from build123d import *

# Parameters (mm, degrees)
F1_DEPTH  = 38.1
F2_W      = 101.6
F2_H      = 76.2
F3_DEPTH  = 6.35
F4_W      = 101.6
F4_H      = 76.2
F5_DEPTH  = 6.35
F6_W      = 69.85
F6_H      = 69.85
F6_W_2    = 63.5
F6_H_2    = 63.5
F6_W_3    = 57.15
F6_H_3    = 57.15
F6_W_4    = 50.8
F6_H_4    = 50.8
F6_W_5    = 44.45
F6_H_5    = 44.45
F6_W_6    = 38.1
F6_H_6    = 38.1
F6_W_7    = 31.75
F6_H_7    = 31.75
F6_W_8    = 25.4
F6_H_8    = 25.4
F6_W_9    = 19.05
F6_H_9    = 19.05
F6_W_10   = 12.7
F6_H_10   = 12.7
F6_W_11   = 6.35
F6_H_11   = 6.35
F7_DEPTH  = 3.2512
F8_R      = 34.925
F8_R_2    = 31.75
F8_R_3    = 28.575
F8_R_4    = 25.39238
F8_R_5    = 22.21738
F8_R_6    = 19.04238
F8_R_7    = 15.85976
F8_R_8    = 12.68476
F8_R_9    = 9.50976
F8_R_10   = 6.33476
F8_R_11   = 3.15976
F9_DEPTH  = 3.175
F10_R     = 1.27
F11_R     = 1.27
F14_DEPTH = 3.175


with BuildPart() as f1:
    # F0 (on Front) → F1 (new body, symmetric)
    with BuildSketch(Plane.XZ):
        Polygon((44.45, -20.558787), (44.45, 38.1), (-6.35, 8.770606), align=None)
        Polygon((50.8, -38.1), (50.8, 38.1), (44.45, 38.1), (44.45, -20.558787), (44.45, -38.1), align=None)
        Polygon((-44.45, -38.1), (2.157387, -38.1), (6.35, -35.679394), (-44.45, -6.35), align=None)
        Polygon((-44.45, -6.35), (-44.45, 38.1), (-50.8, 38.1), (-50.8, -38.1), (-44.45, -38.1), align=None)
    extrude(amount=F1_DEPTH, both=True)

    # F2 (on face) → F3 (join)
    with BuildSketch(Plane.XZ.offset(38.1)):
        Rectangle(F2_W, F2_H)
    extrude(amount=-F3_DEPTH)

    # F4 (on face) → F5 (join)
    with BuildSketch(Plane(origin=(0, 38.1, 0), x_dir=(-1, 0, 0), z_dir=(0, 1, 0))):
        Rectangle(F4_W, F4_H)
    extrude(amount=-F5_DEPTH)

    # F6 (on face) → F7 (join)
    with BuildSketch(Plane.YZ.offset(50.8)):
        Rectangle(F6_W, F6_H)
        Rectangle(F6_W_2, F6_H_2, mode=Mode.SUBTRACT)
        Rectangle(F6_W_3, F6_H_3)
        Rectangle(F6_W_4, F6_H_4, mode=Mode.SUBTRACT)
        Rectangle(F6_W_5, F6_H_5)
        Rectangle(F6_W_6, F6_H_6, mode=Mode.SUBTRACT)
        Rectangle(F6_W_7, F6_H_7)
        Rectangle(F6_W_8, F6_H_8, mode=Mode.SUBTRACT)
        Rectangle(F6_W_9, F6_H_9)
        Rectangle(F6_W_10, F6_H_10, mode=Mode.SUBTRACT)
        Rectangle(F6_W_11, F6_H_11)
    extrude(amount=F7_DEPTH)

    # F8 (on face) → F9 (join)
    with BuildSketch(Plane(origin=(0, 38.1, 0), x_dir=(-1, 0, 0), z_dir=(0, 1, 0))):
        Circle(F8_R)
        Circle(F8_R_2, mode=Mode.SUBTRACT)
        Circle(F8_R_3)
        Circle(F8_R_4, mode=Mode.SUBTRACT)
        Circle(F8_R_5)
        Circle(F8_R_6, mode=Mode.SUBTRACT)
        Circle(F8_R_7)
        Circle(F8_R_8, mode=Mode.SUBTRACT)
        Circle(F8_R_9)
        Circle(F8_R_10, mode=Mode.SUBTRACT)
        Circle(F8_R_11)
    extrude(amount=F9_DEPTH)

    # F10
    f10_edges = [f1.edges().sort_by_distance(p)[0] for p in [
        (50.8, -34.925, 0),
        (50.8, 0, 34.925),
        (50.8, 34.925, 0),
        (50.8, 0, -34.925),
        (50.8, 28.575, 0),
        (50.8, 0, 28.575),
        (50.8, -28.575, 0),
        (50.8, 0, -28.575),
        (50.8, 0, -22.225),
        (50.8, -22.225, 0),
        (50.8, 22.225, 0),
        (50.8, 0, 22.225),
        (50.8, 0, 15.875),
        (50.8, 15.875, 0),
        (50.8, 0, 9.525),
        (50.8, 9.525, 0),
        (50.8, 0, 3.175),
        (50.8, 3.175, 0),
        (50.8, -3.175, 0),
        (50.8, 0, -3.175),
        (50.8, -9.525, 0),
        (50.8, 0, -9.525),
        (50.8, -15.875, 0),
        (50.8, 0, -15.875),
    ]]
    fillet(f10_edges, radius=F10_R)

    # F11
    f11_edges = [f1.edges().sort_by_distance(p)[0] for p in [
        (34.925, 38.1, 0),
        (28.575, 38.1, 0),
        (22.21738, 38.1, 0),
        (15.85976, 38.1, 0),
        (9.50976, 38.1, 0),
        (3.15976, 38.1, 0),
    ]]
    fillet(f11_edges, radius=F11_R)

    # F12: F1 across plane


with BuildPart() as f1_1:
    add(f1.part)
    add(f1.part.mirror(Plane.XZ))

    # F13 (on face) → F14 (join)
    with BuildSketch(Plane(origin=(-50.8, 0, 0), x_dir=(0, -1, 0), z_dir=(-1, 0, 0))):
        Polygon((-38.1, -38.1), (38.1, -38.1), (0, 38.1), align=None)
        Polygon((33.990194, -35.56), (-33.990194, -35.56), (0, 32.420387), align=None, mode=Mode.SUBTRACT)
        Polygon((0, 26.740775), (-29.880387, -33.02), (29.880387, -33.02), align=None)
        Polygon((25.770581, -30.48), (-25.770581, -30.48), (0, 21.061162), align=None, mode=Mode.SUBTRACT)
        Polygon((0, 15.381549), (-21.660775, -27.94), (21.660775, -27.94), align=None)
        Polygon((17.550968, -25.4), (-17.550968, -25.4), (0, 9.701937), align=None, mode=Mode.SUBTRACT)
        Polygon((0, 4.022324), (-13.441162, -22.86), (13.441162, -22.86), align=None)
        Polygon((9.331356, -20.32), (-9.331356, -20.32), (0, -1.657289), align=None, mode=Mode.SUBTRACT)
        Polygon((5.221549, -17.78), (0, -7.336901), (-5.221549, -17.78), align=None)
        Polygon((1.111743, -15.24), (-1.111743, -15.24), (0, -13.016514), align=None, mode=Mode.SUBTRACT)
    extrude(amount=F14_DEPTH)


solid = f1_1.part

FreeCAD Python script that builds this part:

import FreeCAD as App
import Part
import Sketcher
from FreeCAD import Vector
Q = App.Units.Quantity


def edges_at(feature, points):
    """Names of the edges that pass closest to the given points."""
    edges = feature.Shape.Edges
    near = lambda p: min(range(len(edges)), key=lambda i: edges[i].distToShape(Part.Vertex(*p))[0])
    return sorted({f"Edge{near(p) + 1}" for p in points})

doc = App.newDocument("Part")
body = doc.addObject("PartDesign::Body", "Body")
body.AllowCompound = True

# Sketch on XZ plane
sketch1 = doc.addObject("Sketcher::SketchObject", "Sketch")
body.addObject(sketch1)
sketch1.AttachmentSupport = (doc.XZ_Plane, [""])
sketch1.MapMode = "FlatFace"
sketch1.addGeometry([
    Part.LineSegment(Vector(44.5, 38.1, 0), Vector(-6.3, 8.8, 0)),  # 0
    Part.LineSegment(Vector(-6.3, 8.8, 0), Vector(44.5, -20.6, 0)),  # 1
    Part.LineSegment(Vector(44.5, -20.6, 0), Vector(44.5, -38.1, 0)),  # 2
    Part.LineSegment(Vector(44.5, -38.1, 0), Vector(50.8, -38.1, 0)),  # 3
    Part.LineSegment(Vector(50.8, -38.1, 0), Vector(50.8, 38.1, 0)),  # 4
    Part.LineSegment(Vector(50.8, 38.1, 0), Vector(44.5, 38.1, 0)),  # 5
    Part.LineSegment(Vector(2.2, -38.1, 0), Vector(6.3, -35.7, 0)),  # 6
    Part.LineSegment(Vector(6.3, -35.7, 0), Vector(-44.5, -6.3, 0)),  # 7
    Part.LineSegment(Vector(-44.5, -6.3, 0), Vector(-44.5, 38.1, 0)),  # 8
    Part.LineSegment(Vector(-44.5, 38.1, 0), Vector(-50.8, 38.1, 0)),  # 9
    Part.LineSegment(Vector(-50.8, 38.1, 0), Vector(-50.8, -38.1, 0)),  # 10
    Part.LineSegment(Vector(-50.8, -38.1, 0), Vector(2.2, -38.1, 0)),  # 11
], False)
sketch1.addConstraint([
    Sketcher.Constraint("Coincident", 0, 2, 1, 1),
    Sketcher.Constraint("Coincident", 1, 2, 2, 1),
    Sketcher.Constraint("Coincident", 2, 2, 3, 1),
    Sketcher.Constraint("Coincident", 3, 2, 4, 1),
    Sketcher.Constraint("Coincident", 4, 2, 5, 1),
    Sketcher.Constraint("Coincident", 5, 2, 0, 1),
    Sketcher.Constraint("Coincident", 6, 2, 7, 1),
    Sketcher.Constraint("Coincident", 7, 2, 8, 1),
    Sketcher.Constraint("Coincident", 8, 2, 9, 1),
    Sketcher.Constraint("Coincident", 9, 2, 10, 1),
    Sketcher.Constraint("Coincident", 10, 2, 11, 1),
    Sketcher.Constraint("Coincident", 11, 2, 6, 1),
    Sketcher.Constraint("Vertical", 2),
    Sketcher.Constraint("Horizontal", 3),
    Sketcher.Constraint("Vertical", 4),
    Sketcher.Constraint("Horizontal", 5),
    Sketcher.Constraint("Vertical", 8),
    Sketcher.Constraint("Horizontal", 9),
    Sketcher.Constraint("Vertical", 10),
    Sketcher.Constraint("Horizontal", 11),
    Sketcher.Constraint("Symmetric", 2, 2, 8, 2, -1, 1),
    Sketcher.Constraint("Symmetric", 4, 2, 10, 2, -1, 1),
    Sketcher.Constraint("Symmetric", 5, 2, 8, 2, -2),
    Sketcher.Constraint("Parallel", 0, 6),
    Sketcher.Constraint("Parallel", 1, 7),
    Sketcher.Constraint("Equal", 0, 1),
    Sketcher.Constraint("Equal", 1, 7),
    Sketcher.Constraint("DistanceY", 4, 1, 4, 2, Q("3 in")),
    Sketcher.Constraint("DistanceX", -1, 1, 3, 2, Q("2 in")),
    Sketcher.Constraint("Angle", 0, Q("-150 deg")),
    Sketcher.Constraint("DistanceX", 0, 2, 1, 2, Q("2 in")),
    Sketcher.Constraint("DistanceX", 3, 1, 3, 2, Q("0.25 in")),
    Sketcher.Constraint("DistanceY", 8, 1, 8, 2, Q("1.75 in")),
])
pad1 = doc.addObject("PartDesign::Pad", "Pad")
body.addObject(pad1)
pad1.Profile = sketch1
pad1.Length = Q("3 in")
pad1.Midplane = True

# Sketch on XZ plane
sketch2 = doc.addObject("Sketcher::SketchObject", "Sketch001")
body.addObject(sketch2)
sketch2.AttachmentSupport = (doc.XZ_Plane, [""])
sketch2.MapMode = "FlatFace"
sketch2.AttachmentOffset = App.Placement(Vector(0, 0, 1.5 * 25.4), App.Rotation())
sketch2.addGeometry([
    Part.LineSegment(Vector(-51, 38, 0), Vector(-51, -38, 0)),
    Part.LineSegment(Vector(-51, -38, 0), Vector(51, -38, 0)),
    Part.LineSegment(Vector(51, -38, 0), Vector(51, 38, 0)),
    Part.LineSegment(Vector(51, 38, 0), Vector(-51, 38, 0)),
], False)
sketch2.addConstraint([
    Sketcher.Constraint("Coincident", 0, 2, 1, 1),
    Sketcher.Constraint("Coincident", 1, 2, 2, 1),
    Sketcher.Constraint("Coincident", 2, 2, 3, 1),
    Sketcher.Constraint("Coincident", 3, 2, 0, 1),
    Sketcher.Constraint("Vertical", 0),
    Sketcher.Constraint("Horizontal", 1),
    Sketcher.Constraint("Vertical", 2),
    Sketcher.Constraint("Horizontal", 3),
    Sketcher.Constraint("Symmetric", 0, 2, 2, 2, -1, 1),
    Sketcher.Constraint("DistanceX", 1, 1, 1, 2, Q("4 in")),
    Sketcher.Constraint("DistanceY", 0, 2, 0, 1, Q("3 in")),
])
pad2 = doc.addObject("PartDesign::Pad", "Pad001")
body.addObject(pad2)
pad2.Profile = sketch2
pad2.Length = Q("0.25 in")
pad2.Reversed = True

# Sketch on XZ plane
sketch3 = doc.addObject("Sketcher::SketchObject", "Sketch002")
body.addObject(sketch3)
sketch3.AttachmentSupport = (doc.XZ_Plane, [""])
sketch3.MapMode = "FlatFace"
sketch3.AttachmentOffset = App.Placement(Vector(0, 0, -1.5 * 25.4), App.Rotation())
sketch3.addGeometry([
    Part.LineSegment(Vector(51, 38, 0), Vector(51, -38, 0)),
    Part.LineSegment(Vector(51, -38, 0), Vector(-51, -38, 0)),
    Part.LineSegment(Vector(-51, -38, 0), Vector(-51, 38, 0)),
    Part.LineSegment(Vector(-51, 38, 0), Vector(51, 38, 0)),
], False)
sketch3.addConstraint([
    Sketcher.Constraint("Coincident", 0, 2, 1, 1),
    Sketcher.Constraint("Coincident", 1, 2, 2, 1),
    Sketcher.Constraint("Coincident", 2, 2, 3, 1),
    Sketcher.Constraint("Coincident", 3, 2, 0, 1),
    Sketcher.Constraint("Vertical", 0),
    Sketcher.Constraint("Horizontal", 1),
    Sketcher.Constraint("Vertical", 2),
    Sketcher.Constraint("Horizontal", 3),
    Sketcher.Constraint("Symmetric", 0, 2, 2, 2, -1, 1),
    Sketcher.Constraint("DistanceX", 1, 2, 1, 1, Q("4 in")),
    Sketcher.Constraint("DistanceY", 0, 2, 0, 1, Q("3 in")),
])
pad3 = doc.addObject("PartDesign::Pad", "Pad002")
body.addObject(pad3)
pad3.Profile = sketch3
pad3.Length = Q("0.25 in")

# Sketch on YZ plane
sketch4 = doc.addObject("Sketcher::SketchObject", "Sketch003")
body.addObject(sketch4)
sketch4.AttachmentSupport = (doc.YZ_Plane, [""])
sketch4.MapMode = "FlatFace"
sketch4.AttachmentOffset = App.Placement(Vector(0, 0, 2 * 25.4), App.Rotation())
sketch4.addGeometry([
    Part.LineSegment(Vector(-35, 35, 0), Vector(-35, -35, 0)),  # 0
    Part.LineSegment(Vector(-35, -35, 0), Vector(35, -35, 0)),  # 1
    Part.LineSegment(Vector(35, -35, 0), Vector(35, 35, 0)),  # 2
    Part.LineSegment(Vector(35, 35, 0), Vector(-35, 35, 0)),  # 3
    Part.LineSegment(Vector(32, -32, 0), Vector(-32, -32, 0)),  # 4
    Part.LineSegment(Vector(-32, -32, 0), Vector(-32, 32, 0)),  # 5
    Part.LineSegment(Vector(-32, 32, 0), Vector(32, 32, 0)),  # 6
    Part.LineSegment(Vector(32, 32, 0), Vector(32, -32, 0)),  # 7
    Part.LineSegment(Vector(-29, 29, 0), Vector(-29, -29, 0)),  # 8
    Part.LineSegment(Vector(-29, -29, 0), Vector(29, -29, 0)),  # 9
    Part.LineSegment(Vector(29, -29, 0), Vector(29, 29, 0)),  # 10
    Part.LineSegment(Vector(29, 29, 0), Vector(-29, 29, 0)),  # 11
    Part.LineSegment(Vector(25, -25, 0), Vector(-25, -25, 0)),  # 12
    Part.LineSegment(Vector(-25, -25, 0), Vector(-25, 25, 0)),  # 13
    Part.LineSegment(Vector(-25, 25, 0), Vector(25, 25, 0)),  # 14
    Part.LineSegment(Vector(25, 25, 0), Vector(25, -25, 0)),  # 15
    Part.LineSegment(Vector(-22, 22, 0), Vector(-22, -22, 0)),  # 16
    Part.LineSegment(Vector(-22, -22, 0), Vector(22, -22, 0)),  # 17
    Part.LineSegment(Vector(22, -22, 0), Vector(22, 22, 0)),  # 18
    Part.LineSegment(Vector(22, 22, 0), Vector(-22, 22, 0)),  # 19
    Part.LineSegment(Vector(19, -19, 0), Vector(-19, -19, 0)),  # 20
    Part.LineSegment(Vector(-19, -19, 0), Vector(-19, 19, 0)),  # 21
    Part.LineSegment(Vector(-19, 19, 0), Vector(19, 19, 0)),  # 22
    Part.LineSegment(Vector(19, 19, 0), Vector(19, -19, 0)),  # 23
    Part.LineSegment(Vector(-16, 16, 0), Vector(-16, -16, 0)),  # 24
    Part.LineSegment(Vector(-16, -16, 0), Vector(16, -16, 0)),  # 25
    Part.LineSegment(Vector(16, -16, 0), Vector(16, 16, 0)),  # 26
    Part.LineSegment(Vector(16, 16, 0), Vector(-16, 16, 0)),  # 27
    Part.LineSegment(Vector(13, -13, 0), Vector(-13, -13, 0)),  # 28
    Part.LineSegment(Vector(-13, -13, 0), Vector(-13, 13, 0)),  # 29
    Part.LineSegment(Vector(-13, 13, 0), Vector(13, 13, 0)),  # 30
    Part.LineSegment(Vector(13, 13, 0), Vector(13, -13, 0)),  # 31
    Part.LineSegment(Vector(-10, 10, 0), Vector(-10, -10, 0)),  # 32
    Part.LineSegment(Vector(-10, -10, 0), Vector(10, -10, 0)),  # 33
    Part.LineSegment(Vector(10, -10, 0), Vector(10, 10, 0)),  # 34
    Part.LineSegment(Vector(10, 10, 0), Vector(-10, 10, 0)),  # 35
    Part.LineSegment(Vector(6, -6, 0), Vector(-6, -6, 0)),  # 36
    Part.LineSegment(Vector(-6, -6, 0), Vector(-6, 6, 0)),  # 37
    Part.LineSegment(Vector(-6, 6, 0), Vector(6, 6, 0)),  # 38
    Part.LineSegment(Vector(6, 6, 0), Vector(6, -6, 0)),  # 39
    Part.LineSegment(Vector(-3, 3, 0), Vector(-3, -3, 0)),  # 40
    Part.LineSegment(Vector(-3, -3, 0), Vector(3, -3, 0)),  # 41
    Part.LineSegment(Vector(3, -3, 0), Vector(3, 3, 0)),  # 42
    Part.LineSegment(Vector(3, 3, 0), Vector(-3, 3, 0)),  # 43
], False)
sketch4.addConstraint([
    Sketcher.Constraint("Coincident", 0, 2, 1, 1),
    Sketcher.Constraint("Coincident", 1, 2, 2, 1),
    Sketcher.Constraint("Coincident", 2, 2, 3, 1),
    Sketcher.Constraint("Coincident", 3, 2, 0, 1),
    Sketcher.Constraint("Coincident", 4, 2, 5, 1),
    Sketcher.Constraint("Coincident", 5, 2, 6, 1),
    Sketcher.Constraint("Coincident", 6, 2, 7, 1),
    Sketcher.Constraint("Coincident", 7, 2, 4, 1),
    Sketcher.Constraint("Coincident", 8, 2, 9, 1),
    Sketcher.Constraint("Coincident", 9, 2, 10, 1),
    Sketcher.Constraint("Coincident", 10, 2, 11, 1),
    Sketcher.Constraint("Coincident", 11, 2, 8, 1),
    Sketcher.Constraint("Coincident", 12, 2, 13, 1),
    Sketcher.Constraint("Coincident", 13, 2, 14, 1),
    Sketcher.Constraint("Coincident", 14, 2, 15, 1),
    Sketcher.Constraint("Coincident", 15, 2, 12, 1),
    Sketcher.Constraint("Coincident", 16, 2, 17, 1),
    Sketcher.Constraint("Coincident", 17, 2, 18, 1),
    Sketcher.Constraint("Coincident", 18, 2, 19, 1),
    Sketcher.Constraint("Coincident", 19, 2, 16, 1),
    Sketcher.Constraint("Coincident", 20, 2, 21, 1),
    Sketcher.Constraint("Coincident", 21, 2, 22, 1),
    Sketcher.Constraint("Coincident", 22, 2, 23, 1),
    Sketcher.Constraint("Coincident", 23, 2, 20, 1),
    Sketcher.Constraint("Coincident", 24, 2, 25, 1),
    Sketcher.Constraint("Coincident", 25, 2, 26, 1),
    Sketcher.Constraint("Coincident", 26, 2, 27, 1),
    Sketcher.Constraint("Coincident", 27, 2, 24, 1),
    Sketcher.Constraint("Coincident", 28, 2, 29, 1),
    Sketcher.Constraint("Coincident", 29, 2, 30, 1),
    Sketcher.Constraint("Coincident", 30, 2, 31, 1),
    Sketcher.Constraint("Coincident", 31, 2, 28, 1),
    Sketcher.Constraint("Coincident", 32, 2, 33, 1),
    Sketcher.Constraint("Coincident", 33, 2, 34, 1),
    Sketcher.Constraint("Coincident", 34, 2, 35, 1),
    Sketcher.Constraint("Coincident", 35, 2, 32, 1),
    Sketcher.Constraint("Coincident", 36, 2, 37, 1),
    Sketcher.Constraint("Coincident", 37, 2, 38, 1),
    Sketcher.Constraint("Coincident", 38, 2, 39, 1),
    Sketcher.Constraint("Coincident", 39, 2, 36, 1),
    Sketcher.Constraint("Coincident", 40, 2, 41, 1),
    Sketcher.Constraint("Coincident", 41, 2, 42, 1),
    Sketcher.Constraint("Coincident", 42, 2, 43, 1),
    Sketcher.Constraint("Coincident", 43, 2, 40, 1),
    Sketcher.Constraint("Vertical", 0),
    Sketcher.Constraint("Horizontal", 1),
    Sketcher.Constraint("Vertical", 2),
    Sketcher.Constraint("Horizontal", 3),
    Sketcher.Constraint("Horizontal", 4),
    Sketcher.Constraint("Vertical", 5),
    Sketcher.Constraint("Horizontal", 6),
    Sketcher.Constraint("Vertical", 7),
    Sketcher.Constraint("Vertical", 8),
    Sketcher.Constraint("Horizontal", 9),
    Sketcher.Constraint("Vertical", 10),
    Sketcher.Constraint("Horizontal", 11),
    Sketcher.Constraint("Horizontal", 12),
    Sketcher.Constraint("Vertical", 13),
    Sketcher.Constraint("Horizontal", 14),
    Sketcher.Constraint("Vertical", 15),
    Sketcher.Constraint("Vertical", 16),
    Sketcher.Constraint("Horizontal", 17),
    Sketcher.Constraint("Vertical", 18),
    Sketcher.Constraint("Horizontal", 19),
    Sketcher.Constraint("Horizontal", 20),
    Sketcher.Constraint("Vertical", 21),
    Sketcher.Constraint("Horizontal", 22),
    Sketcher.Constraint("Vertical", 23),
    Sketcher.Constraint("Vertical", 24),
    Sketcher.Constraint("Horizontal", 25),
    Sketcher.Constraint("Vertical", 26),
    Sketcher.Constraint("Horizontal", 27),
    Sketcher.Constraint("Horizontal", 28),
    Sketcher.Constraint("Vertical", 29),
    Sketcher.Constraint("Horizontal", 30),
    Sketcher.Constraint("Vertical", 31),
    Sketcher.Constraint("Vertical", 32),
    Sketcher.Constraint("Horizontal", 33),
    Sketcher.Constraint("Vertical", 34),
    Sketcher.Constraint("Horizontal", 35),
    Sketcher.Constraint("Horizontal", 36),
    Sketcher.Constraint("Vertical", 37),
    Sketcher.Constraint("Horizontal", 38),
    Sketcher.Constraint("Vertical", 39),
    Sketcher.Constraint("Vertical", 40),
    Sketcher.Constraint("Horizontal", 41),
    Sketcher.Constraint("Vertical", 42),
    Sketcher.Constraint("Horizontal", 43),
    Sketcher.Constraint("Symmetric", 0, 2, 2, 2, -1, 1),
    Sketcher.Constraint("Symmetric", 4, 2, 6, 2, -1, 1),
    Sketcher.Constraint("Symmetric", 8, 2, 10, 2, -1, 1),
    Sketcher.Constraint("Symmetric", 12, 2, 14, 2, -1, 1),
    Sketcher.Constraint("Symmetric", 16, 2, 18, 2, -1, 1),
    Sketcher.Constraint("Symmetric", 20, 2, 22, 2, -1, 1),
    Sketcher.Constraint("Symmetric", 24, 2, 26, 2, -1, 1),
    Sketcher.Constraint("Symmetric", 28, 2, 30, 2, -1, 1),
    Sketcher.Constraint("Symmetric", 32, 2, 34, 2, -1, 1),
    Sketcher.Constraint("Symmetric", 36, 2, 38, 2, -1, 1),
    Sketcher.Constraint("Symmetric", 40, 2, 42, 2, -1, 1),
    Sketcher.Constraint("Equal", 3, 0),
    Sketcher.Constraint("Equal", 6, 5),
    Sketcher.Constraint("Equal", 11, 8),
    Sketcher.Constraint("Equal", 14, 13),
    Sketcher.Constraint("Equal", 19, 16),
    Sketcher.Constraint("Equal", 22, 21),
    Sketcher.Constraint("Equal", 27, 24),
    Sketcher.Constraint("Equal", 30, 29),
    Sketcher.Constraint("Equal", 35, 32),
    Sketcher.Constraint("Equal", 38, 37),
    Sketcher.Constraint("Equal", 43, 40),
    Sketcher.Constraint("DistanceX", 12, 2, 12, 1, Q("2 in")),
    Sketcher.Constraint("DistanceX", 28, 2, 28, 1, Q("1 in")),
    Sketcher.Constraint("DistanceX", 4, 2, 4, 1, Q("2.5 in")),
    Sketcher.Constraint("DistanceX", 20, 2, 20, 1, Q("1.5 in")),
    Sketcher.Constraint("DistanceX", 36, 2, 36, 1, Q("0.5 in")),
    Sketcher.Constraint("DistanceX", 1, 1, 1, 2, Q("2.75 in")),
    Sketcher.Constraint("DistanceX", 9, 1, 9, 2, Q("2.25 in")),
    Sketcher.Constraint("DistanceX", 17, 1, 17, 2, Q("1.75 in")),
    Sketcher.Constraint("DistanceX", 25, 1, 25, 2, Q("1.25 in")),
    Sketcher.Constraint("DistanceX", 33, 1, 33, 2, Q("0.75 in")),
    Sketcher.Constraint("DistanceX", 41, 1, 41, 2, Q("0.25 in")),
])
pad4 = doc.addObject("PartDesign::Pad", "Pad003")
body.addObject(pad4)
pad4.Profile = sketch4
pad4.Length = Q("0.128 in")

# Sketch on XZ plane
sketch5 = doc.addObject("Sketcher::SketchObject", "Sketch004")
body.addObject(sketch5)
sketch5.AttachmentSupport = (doc.XZ_Plane, [""])
sketch5.MapMode = "FlatFace"
sketch5.AttachmentOffset = App.Placement(Vector(0, 0, -1.5 * 25.4), App.Rotation())
sketch5.addGeometry([
    Part.Circle(Vector(0, 0, 0), Vector(0, 0, 1), 34.9),  # 0
    Part.Circle(Vector(0, 0, 0), Vector(0, 0, 1), 31.8),  # 1
    Part.Circle(Vector(0, 0, 0), Vector(0, 0, 1), 28.6),  # 2
    Part.Circle(Vector(0, 0, 0), Vector(0, 0, 1), 25.4),  # 3
    Part.Circle(Vector(0, 0, 0), Vector(0, 0, 1), 22.2),  # 4
    Part.Circle(Vector(0, 0, 0), Vector(0, 0, 1), 19),  # 5
    Part.Circle(Vector(0, 0, 0), Vector(0, 0, 1), 15.9),  # 6
    Part.Circle(Vector(0, 0, 0), Vector(0, 0, 1), 12.7),  # 7
    Part.Circle(Vector(0, 0, 0), Vector(0, 0, 1), 9.5),  # 8
    Part.Circle(Vector(0, 0, 0), Vector(0, 0, 1), 6.3),  # 9
    Part.Circle(Vector(0, 0, 0), Vector(0, 0, 1), 3.2),  # 10
], False)
sketch5.addConstraint([
    Sketcher.Constraint("Coincident", 0, 3, -1, 1),
    Sketcher.Constraint("Coincident", 1, 3, -1, 1),
    Sketcher.Constraint("Coincident", 2, 3, -1, 1),
    Sketcher.Constraint("Coincident", 3, 3, -1, 1),
    Sketcher.Constraint("Coincident", 4, 3, -1, 1),
    Sketcher.Constraint("Coincident", 5, 3, -1, 1),
    Sketcher.Constraint("Coincident", 6, 3, -1, 1),
    Sketcher.Constraint("Coincident", 7, 3, -1, 1),
    Sketcher.Constraint("Coincident", 8, 3, -1, 1),
    Sketcher.Constraint("Coincident", 9, 3, -1, 1),
    Sketcher.Constraint("Coincident", 10, 3, -1, 1),
    Sketcher.Constraint("Diameter", 1, Q("2.5 in")),
    Sketcher.Constraint("Diameter", 0, Q("2.75 in")),
    Sketcher.Constraint("Diameter", 2, Q("2.25 in")),
    Sketcher.Constraint("Diameter", 3, Q("1.9994 in")),
    Sketcher.Constraint("Diameter", 4, Q("1.7494 in")),
    Sketcher.Constraint("Diameter", 5, Q("1.4994 in")),
    Sketcher.Constraint("Diameter", 6, Q("1.2488 in")),
    Sketcher.Constraint("Diameter", 7, Q("0.9988 in")),
    Sketcher.Constraint("Diameter", 8, Q("0.7488 in")),
    Sketcher.Constraint("Diameter", 9, Q("0.4988 in")),
    Sketcher.Constraint("Diameter", 10, Q("0.2488 in")),
])
pad5 = doc.addObject("PartDesign::Pad", "Pad004")
body.addObject(pad5)
pad5.Profile = sketch5
pad5.Length = Q("0.125 in")
pad5.Reversed = True
doc.recompute()

fillet = doc.addObject("PartDesign::Fillet", "Fillet")
body.addObject(fillet)
fillet.Base = (pad5, edges_at(pad5, [
    (50.8, -34.925, 0),
    (50.8, 0, 34.925),
    (50.8, 34.925, 0),
    (50.8, 0, -34.925),
    (50.8, 28.575, 0),
    (50.8, 0, 28.575),
    (50.8, -28.575, 0),
    (50.8, 0, -28.575),
    (50.8, 0, -22.225),
    (50.8, -22.225, 0),
    (50.8, 22.225, 0),
    (50.8, 0, 22.225),
    (50.8, 0, 15.875),
    (50.8, 15.875, 0),
    (50.8, 0, 9.525),
    (50.8, 9.525, 0),
    (50.8, 0, 3.175),
    (50.8, 3.175, 0),
    (50.8, -3.175, 0),
    (50.8, 0, -3.175),
    (50.8, -9.525, 0),
    (50.8, 0, -9.525),
    (50.8, -15.875, 0),
    (50.8, 0, -15.875),
]))
fillet.Radius = Q("0.05 in")
doc.recompute()

fillet2 = doc.addObject("PartDesign::Fillet", "Fillet001")
body.addObject(fillet2)
fillet2.Base = (fillet, edges_at(fillet, [
    (34.925, 38.1, 0),
    (28.575, 38.1, 0),
    (22.217, 38.1, 0),
    (15.86, 38.1, 0),
    (9.51, 38.1, 0),
    (3.16, 38.1, 0),
]))
fillet2.Radius = Q("0.05 in")
body2 = doc.addObject("PartDesign::Body", "Body001")
doc.recompute()

body2.BaseFeature = body
doc.recompute()

mirroring = doc.addObject("Part::Mirroring", "Mirroring")
mirroring.Source = body
mirroring.Base = Vector(0, 0, 0)
mirroring.Normal = Vector(0, -1, 0)
body3 = doc.addObject("PartDesign::Body", "Body002")
body3.BaseFeature = mirroring
boolean = doc.addObject("PartDesign::Boolean", "Boolean")
body2.addObject(boolean)
boolean.Type = "Fuse"
boolean.addObjects([body3])
doc.recompute()

# Sketch on YZ plane
sketch6 = doc.addObject("Sketcher::SketchObject", "Sketch005")
body2.addObject(sketch6)
sketch6.AttachmentSupport = (doc.getObject("YZ_Plane001"), [""])
sketch6.MapMode = "FlatFace"
sketch6.AttachmentOffset = App.Placement(Vector(0, 0, -2 * 25.4), App.Rotation())
sketch6.addGeometry([
    Part.LineSegment(Vector(38.1, -38.1, 0), Vector(-38.1, -38.1, 0)),  # 0
    Part.LineSegment(Vector(-38.1, -38.1, 0), Vector(0, 38.1, 0)),  # 1
    Part.LineSegment(Vector(0, 38.1, 0), Vector(38.1, -38.1, 0)),  # 2
    Part.LineSegment(Vector(0, 32.4, 0), Vector(-34, -35.6, 0)),  # 3
    Part.LineSegment(Vector(-34, -35.6, 0), Vector(34, -35.6, 0)),  # 4
    Part.LineSegment(Vector(34, -35.6, 0), Vector(0, 32.4, 0)),  # 5
    Part.LineSegment(Vector(0, 26.7, 0), Vector(29.9, -33, 0)),  # 6
    Part.LineSegment(Vector(29.9, -33, 0), Vector(-29.9, -33, 0)),  # 7
    Part.LineSegment(Vector(-29.9, -33, 0), Vector(0, 26.7, 0)),  # 8
    Part.LineSegment(Vector(0, 21.1, 0), Vector(-25.8, -30.5, 0)),  # 9
    Part.LineSegment(Vector(-25.8, -30.5, 0), Vector(25.8, -30.5, 0)),  # 10
    Part.LineSegment(Vector(25.8, -30.5, 0), Vector(0, 21.1, 0)),  # 11
    Part.LineSegment(Vector(0, 15.4, 0), Vector(21.7, -27.9, 0)),  # 12
    Part.LineSegment(Vector(21.7, -27.9, 0), Vector(-21.7, -27.9, 0)),  # 13
    Part.LineSegment(Vector(-21.7, -27.9, 0), Vector(0, 15.4, 0)),  # 14
    Part.LineSegment(Vector(0, 9.7, 0), Vector(-17.6, -25.4, 0)),  # 15
    Part.LineSegment(Vector(-17.6, -25.4, 0), Vector(17.6, -25.4, 0)),  # 16
    Part.LineSegment(Vector(17.6, -25.4, 0), Vector(0, 9.7, 0)),  # 17
    Part.LineSegment(Vector(0, 4, 0), Vector(13.4, -22.9, 0)),  # 18
    Part.LineSegment(Vector(13.4, -22.9, 0), Vector(-13.4, -22.9, 0)),  # 19
    Part.LineSegment(Vector(-13.4, -22.9, 0), Vector(0, 4, 0)),  # 20
    Part.LineSegment(Vector(0, -1.7, 0), Vector(-9.3, -20.3, 0)),  # 21
    Part.LineSegment(Vector(-9.3, -20.3, 0), Vector(9.3, -20.3, 0)),  # 22
    Part.LineSegment(Vector(9.3, -20.3, 0), Vector(0, -1.7, 0)),  # 23
    Part.LineSegment(Vector(-5.2, -17.8, 0), Vector(0, -7.3, 0)),  # 24
    Part.LineSegment(Vector(0, -7.3, 0), Vector(5.2, -17.8, 0)),  # 25
    Part.LineSegment(Vector(5.2, -17.8, 0), Vector(-5.2, -17.8, 0)),  # 26
    Part.LineSegment(Vector(0, -13, 0), Vector(-1.1, -15.2, 0)),  # 27
    Part.LineSegment(Vector(-1.1, -15.2, 0), Vector(1.1, -15.2, 0)),  # 28
    Part.LineSegment(Vector(1.1, -15.2, 0), Vector(0, -13, 0)),  # 29
], False)
sketch6.addConstraint([
    Sketcher.Constraint("Coincident", 0, 2, 1, 1),
    Sketcher.Constraint("Coincident", 1, 2, 2, 1),
    Sketcher.Constraint("Coincident", 2, 2, 0, 1),
    Sketcher.Constraint("Coincident", 3, 2, 4, 1),
    Sketcher.Constraint("Coincident", 4, 2, 5, 1),
    Sketcher.Constraint("Coincident", 5, 2, 3, 1),
    Sketcher.Constraint("Coincident", 6, 2, 7, 1),
    Sketcher.Constraint("Coincident", 7, 2, 8, 1),
    Sketcher.Constraint("Coincident", 8, 2, 6, 1),
    Sketcher.Constraint("Coincident", 9, 2, 10, 1),
    Sketcher.Constraint("Coincident", 10, 2, 11, 1),
    Sketcher.Constraint("Coincident", 11, 2, 9, 1),
    Sketcher.Constraint("Coincident", 12, 2, 13, 1),
    Sketcher.Constraint("Coincident", 13, 2, 14, 1),
    Sketcher.Constraint("Coincident", 14, 2, 12, 1),
    Sketcher.Constraint("Coincident", 15, 2, 16, 1),
    Sketcher.Constraint("Coincident", 16, 2, 17, 1),
    Sketcher.Constraint("Coincident", 17, 2, 15, 1),
    Sketcher.Constraint("Coincident", 18, 2, 19, 1),
    Sketcher.Constraint("Coincident", 19, 2, 20, 1),
    Sketcher.Constraint("Coincident", 20, 2, 18, 1),
    Sketcher.Constraint("Coincident", 21, 2, 22, 1),
    Sketcher.Constraint("Coincident", 22, 2, 23, 1),
    Sketcher.Constraint("Coincident", 23, 2, 21, 1),
    Sketcher.Constraint("Coincident", 24, 2, 25, 1),
    Sketcher.Constraint("Coincident", 25, 2, 26, 1),
    Sketcher.Constraint("Coincident", 26, 2, 24, 1),
    Sketcher.Constraint("Coincident", 27, 2, 28, 1),
    Sketcher.Constraint("Coincident", 28, 2, 29, 1),
    Sketcher.Constraint("Coincident", 29, 2, 27, 1),
    Sketcher.Constraint("Horizontal", 0),
    Sketcher.Constraint("Horizontal", 4),
    Sketcher.Constraint("Horizontal", 7),
    Sketcher.Constraint("Horizontal", 10),
    Sketcher.Constraint("Horizontal", 13),
    Sketcher.Constraint("Horizontal", 16),
    Sketcher.Constraint("Horizontal", 19),
    Sketcher.Constraint("Horizontal", 22),
    Sketcher.Constraint("Horizontal", 26),
    Sketcher.Constraint("Horizontal", 28),
    Sketcher.Constraint("PointOnObject", 1, 2, -2),
    Sketcher.Constraint("PointOnObject", 5, 2, -2),
    Sketcher.Constraint("PointOnObject", 8, 2, -2),
    Sketcher.Constraint("PointOnObject", 11, 2, -2),
    Sketcher.Constraint("PointOnObject", 14, 2, -2),
    Sketcher.Constraint("PointOnObject", 17, 2, -2),
    Sketcher.Constraint("PointOnObject", 20, 2, -2),
    Sketcher.Constraint("PointOnObject", 23, 2, -2),
    Sketcher.Constraint("PointOnObject", 24, 2, -2),
    Sketcher.Constraint("PointOnObject", 29, 2, -2),
    Sketcher.Constraint("Parallel", 1, 3),
    Sketcher.Constraint("Parallel", 2, 5),
    Sketcher.Constraint("Parallel", 5, 6),
    Sketcher.Constraint("Parallel", 3, 8),
    Sketcher.Constraint("Parallel", 8, 9),
    Sketcher.Constraint("Parallel", 6, 11),
    Sketcher.Constraint("Parallel", 11, 12),
    Sketcher.Constraint("Parallel", 9, 14),
    Sketcher.Constraint("Parallel", 14, 15),
    Sketcher.Constraint("Parallel", 12, 17),
    Sketcher.Constraint("Parallel", 17, 18),
    Sketcher.Constraint("Parallel", 15, 20),
    Sketcher.Constraint("Parallel", 20, 21),
    Sketcher.Constraint("Parallel", 18, 23),
    Sketcher.Constraint("Parallel", 21, 24),
    Sketcher.Constraint("Parallel", 23, 25),
    Sketcher.Constraint("Parallel", 24, 27),
    Sketcher.Constraint("Parallel", 25, 29),
    Sketcher.Constraint("Equal", 1, 2),
    Sketcher.Constraint("DistanceX", 0, 2, 0, 1, Q("3 in")),
    Sketcher.Constraint("DistanceY", 15, 2, -1, 1, Q("1 in")),
    Sketcher.Constraint("DistanceY", 0, 2, 1, 2, Q("3 in")),
    Sketcher.Constraint("DistanceY", 0, 2, -1, 1, Q("1.5 in")),
    Sketcher.Constraint("DistanceY", 3, 2, -1, 1, Q("1.4 in")),
    Sketcher.Constraint("DistanceY", 6, 2, -1, 1, Q("1.3 in")),
    Sketcher.Constraint("DistanceY", 9, 2, -1, 1, Q("1.2 in")),
    Sketcher.Constraint("DistanceY", 12, 2, -1, 1, Q("1.1 in")),
    Sketcher.Constraint("DistanceY", 18, 2, -1, 1, Q("0.9 in")),
    Sketcher.Constraint("DistanceY", 21, 2, -1, 1, Q("0.8 in")),
    Sketcher.Constraint("DistanceY", 25, 2, -1, 1, Q("0.7 in")),
    Sketcher.Constraint("DistanceY", 27, 2, -1, 1, Q("0.6 in")),
    Sketcher.Constraint("DistanceX", 26, 2, 26, 1, 10.443098),
    Sketcher.Constraint("DistanceX", 4, 1, 4, 2, 67.980388),
    Sketcher.Constraint("DistanceX", 13, 2, 13, 1, 43.32155),
    Sketcher.Constraint("DistanceX", 22, 1, 22, 2, 18.662712),
    Sketcher.Constraint("DistanceX", 27, 2, 22, 2, 10.443099),
    Sketcher.Constraint("Distance", 9, 57.624771),
    Sketcher.Constraint("Distance", 15, 39.245158),
    Sketcher.Constraint("Distance", 18, 30.055352),
    Sketcher.Constraint("DistanceX", 7, 2, 7, 1, 59.760774),
])
pad6 = doc.addObject("PartDesign::Pad", "Pad005")
body2.addObject(pad6)
pad6.Profile = sketch6
pad6.Length = Q("0.125 in")
pad6.Reversed = True
mirroring.Visibility = False

doc.recompute()
